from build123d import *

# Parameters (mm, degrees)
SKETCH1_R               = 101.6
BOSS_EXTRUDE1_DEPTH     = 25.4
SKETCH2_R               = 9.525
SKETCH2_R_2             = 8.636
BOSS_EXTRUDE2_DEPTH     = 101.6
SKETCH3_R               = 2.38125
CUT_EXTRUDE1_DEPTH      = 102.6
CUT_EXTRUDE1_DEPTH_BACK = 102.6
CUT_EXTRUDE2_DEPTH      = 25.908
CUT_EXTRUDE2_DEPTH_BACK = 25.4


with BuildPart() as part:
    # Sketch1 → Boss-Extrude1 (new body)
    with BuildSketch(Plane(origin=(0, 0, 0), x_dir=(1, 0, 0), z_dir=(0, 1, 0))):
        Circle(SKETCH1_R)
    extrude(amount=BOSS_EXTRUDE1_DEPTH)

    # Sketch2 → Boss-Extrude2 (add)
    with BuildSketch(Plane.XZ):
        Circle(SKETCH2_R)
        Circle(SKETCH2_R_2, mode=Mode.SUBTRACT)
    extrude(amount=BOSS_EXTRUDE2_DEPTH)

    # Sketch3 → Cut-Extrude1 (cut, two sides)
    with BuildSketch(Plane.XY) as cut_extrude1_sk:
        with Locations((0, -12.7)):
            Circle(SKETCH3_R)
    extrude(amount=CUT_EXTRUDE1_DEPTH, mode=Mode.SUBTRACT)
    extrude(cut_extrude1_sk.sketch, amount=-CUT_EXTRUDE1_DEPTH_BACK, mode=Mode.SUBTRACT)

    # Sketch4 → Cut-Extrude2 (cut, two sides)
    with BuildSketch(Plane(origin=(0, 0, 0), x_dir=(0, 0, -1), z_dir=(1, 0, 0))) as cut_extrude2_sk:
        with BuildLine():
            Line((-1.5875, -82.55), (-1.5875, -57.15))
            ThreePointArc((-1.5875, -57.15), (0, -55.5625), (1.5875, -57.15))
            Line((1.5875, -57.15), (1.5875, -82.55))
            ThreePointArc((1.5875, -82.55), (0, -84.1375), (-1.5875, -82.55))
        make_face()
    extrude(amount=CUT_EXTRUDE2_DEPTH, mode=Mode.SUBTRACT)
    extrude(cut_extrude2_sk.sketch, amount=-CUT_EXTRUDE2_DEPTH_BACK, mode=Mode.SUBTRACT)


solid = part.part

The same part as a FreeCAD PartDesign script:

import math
import FreeCAD as App
import Part
import Sketcher
from FreeCAD import Vector
Q = App.Units.Quantity

doc = App.newDocument("Part")
body = doc.addObject("PartDesign::Body", "Body")

sketch1 = body.newObject("Sketcher::SketchObject", "Sketch")
sketch1.AttachmentSupport = (doc.getObject("XZ_Plane"), [""])
sketch1.MapMode = "FlatFace"
sketch1.addGeometry(Part.Circle(Vector(0, 0, 0), Vector(0, 0, 1), 102), False)
sketch1.addConstraint(Sketcher.Constraint("Coincident", 0, 3, -1, 1))
sketch1.addConstraint(Sketcher.Constraint("Diameter", 0, Q("8 in")))
pad1 = body.newObject("PartDesign::Pad", "Pad")
pad1.Profile = sketch1
pad1.Length = Q("1 in")
pad1.Reversed = True

sketch2 = body.newObject("Sketcher::SketchObject", "Sketch001")
sketch2.AttachmentSupport = (doc.getObject("XZ_Plane"), [""])
sketch2.MapMode = "FlatFace"
sketch2.addGeometry(Part.Circle(Vector(0, 0, 0), Vector(0, 0, 1), 10), False)
sketch2.addGeometry(Part.Circle(Vector(0, 0, 0), Vector(0, 0, 1), 9), False)
sketch2.addConstraint(Sketcher.Constraint("Coincident", 0, 3, -1, 1))
sketch2.addConstraint(Sketcher.Constraint("Coincident", 1, 3, -1, 1))
sketch2.addConstraint(Sketcher.Constraint("Diameter", 0, Q("0.75 in")))
sketch2.addConstraint(Sketcher.Constraint("Diameter", 1, Q("0.68 in")))
pad2 = body.newObject("PartDesign::Pad", "Pad001")
pad2.Profile = sketch2
pad2.Length = Q("4 in")

sketch3 = body.newObject("Sketcher::SketchObject", "Sketch002")
sketch3.AttachmentSupport = (doc.getObject("XY_Plane"), [""])
sketch3.MapMode = "FlatFace"
sketch3.addGeometry(Part.Circle(Vector(0, -12.7, 0), Vector(0, 0, 1), 2.4), False)
sketch3.addConstraint(Sketcher.Constraint("PointOnObject", 0, 3, -2))
sketch3.addConstraint(Sketcher.Constraint("Diameter", 0, Q("0.1875 in")))
sketch3.addConstraint(Sketcher.Constraint("DistanceY", 0, 3, -1, 1, Q("0.5 in")))
pocket1 = body.newObject("PartDesign::Pocket", "Pocket")
pocket1.Profile = sketch3
pocket1.Type = "ThroughAll"
pocket1.Midplane = True

sketch4 = body.newObject("Sketcher::SketchObject", "Sketch003")
sketch4.AttachmentSupport = (doc.getObject("YZ_Plane"), [""])
sketch4.MapMode = "FlatFace"
sketch4.addGeometry(Part.LineSegment(Vector(-57.1, 1.6, 0), Vector(-82.5, 1.6, 0)), False)
sketch4.addGeometry(Part.ArcOfCircle(Part.Circle(Vector(-82.5, 0, 0), Vector(0, 0, 1), 1.6), math.radians(90), math.radians(270)), False)
sketch4.addGeometry(Part.LineSegment(Vector(-82.5, -1.6, 0), Vector(-57.1, -1.6, 0)), False)
sketch4.addGeometry(Part.ArcOfCircle(Part.Circle(Vector(-57.1, 0, 0), Vector(0, 0, 1), 1.6), math.radians(-90), math.radians(90)), False)
sketch4.addConstraint(Sketcher.Constraint("Tangent", 0, 2, 1, 1))
sketch4.addConstraint(Sketcher.Constraint("Tangent", 1, 2, 2, 1))
sketch4.addConstraint(Sketcher.Constraint("Tangent", 2, 2, 3, 1))
sketch4.addConstraint(Sketcher.Constraint("Tangent", 3, 2, 0, 1))
sketch4.addConstraint(Sketcher.Constraint("Horizontal", 0))
sketch4.addConstraint(Sketcher.Constraint("Horizontal", 2))
sketch4.addConstraint(Sketcher.Constraint("PointOnObject", 1, 3, -1))
sketch4.addConstraint(Sketcher.Constraint("DistanceX", 0, 2, 0, 1, Q("1 in")))
sketch4.addConstraint(Sketcher.Constraint("Radius", 1, Q("0.0625 in")))
sketch4.addConstraint(Sketcher.Constraint("DistanceX", 1, 3, -1, 1, Q("3.25 in")))
pocket2 = body.newObject("PartDesign::Pocket", "Pocket001")
pocket2.Profile = sketch4
pocket2.Type = "ThroughAll"
pocket2.Midplane = True

doc.recompute()
